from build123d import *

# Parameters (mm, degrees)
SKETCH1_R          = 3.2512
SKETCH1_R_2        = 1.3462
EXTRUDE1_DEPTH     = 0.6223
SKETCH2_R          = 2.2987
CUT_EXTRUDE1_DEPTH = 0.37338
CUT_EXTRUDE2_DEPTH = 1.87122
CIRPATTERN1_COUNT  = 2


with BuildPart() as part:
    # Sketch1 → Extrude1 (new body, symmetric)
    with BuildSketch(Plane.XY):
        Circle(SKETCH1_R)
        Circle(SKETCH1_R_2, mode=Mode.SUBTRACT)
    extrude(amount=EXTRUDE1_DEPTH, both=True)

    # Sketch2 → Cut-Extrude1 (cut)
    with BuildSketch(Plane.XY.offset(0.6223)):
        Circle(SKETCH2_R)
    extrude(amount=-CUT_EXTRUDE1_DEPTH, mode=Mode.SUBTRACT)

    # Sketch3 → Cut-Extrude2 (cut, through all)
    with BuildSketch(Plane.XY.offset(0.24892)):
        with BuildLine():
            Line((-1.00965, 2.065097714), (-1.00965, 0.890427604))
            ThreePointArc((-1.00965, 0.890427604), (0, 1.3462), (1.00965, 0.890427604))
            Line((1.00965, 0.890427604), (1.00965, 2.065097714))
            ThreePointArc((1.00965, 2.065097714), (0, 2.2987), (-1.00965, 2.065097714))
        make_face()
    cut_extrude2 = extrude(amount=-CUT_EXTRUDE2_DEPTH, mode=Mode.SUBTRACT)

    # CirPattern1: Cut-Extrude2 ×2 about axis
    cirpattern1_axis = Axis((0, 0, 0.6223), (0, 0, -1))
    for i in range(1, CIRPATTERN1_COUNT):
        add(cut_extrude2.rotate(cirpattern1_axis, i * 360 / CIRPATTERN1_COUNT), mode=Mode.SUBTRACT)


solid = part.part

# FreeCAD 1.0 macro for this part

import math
import FreeCAD as App
import Part
import Sketcher

V = App.Vector
Q = App.Units.Quantity

doc = App.newDocument("Part")
body = doc.addObject("PartDesign::Body", "Body")

# Sketch on XY plane
sketch1 = doc.addObject("Sketcher::SketchObject", "Sketch")
body.addObject(sketch1)
sketch1.AttachmentSupport = (doc.XY_Plane, [""])
sketch1.MapMode = "FlatFace"
sketch1.addGeometry(Part.Circle(V(0, 0, 0), V(0, 0, 1), 3.3), False)
sketch1.addGeometry(Part.Circle(V(0, 0, 0), V(0, 0, 1), 1.3), False)
sketch1.addConstraint(Sketcher.Constraint("Coincident", 0, 3, -1, 1))
sketch1.addConstraint(Sketcher.Constraint("Coincident", 1, 3, -1, 1))
sketch1.addConstraint(Sketcher.Constraint("Diameter", 0, Q("0.256 in")))
sketch1.addConstraint(Sketcher.Constraint("Diameter", 1, Q("0.106 in")))
pad1 = doc.addObject("PartDesign::Pad", "Pad")
body.addObject(pad1)
pad1.Profile = sketch1
pad1.Length = Q("0.049 in")
pad1.Midplane = True

# Sketch on XY plane
sketch2 = doc.addObject("Sketcher::SketchObject", "Sketch001")
body.addObject(sketch2)
sketch2.AttachmentSupport = (doc.XY_Plane, [""])
sketch2.MapMode = "FlatFace"
sketch2.AttachmentOffset = App.Placement(V(0, 0, 0.0245 * 25.4), App.Rotation())
sketch2.addGeometry(Part.Circle(V(0, 0, 0), V(0, 0, 1), 2.3), False)
sketch2.addConstraint(Sketcher.Constraint("Coincident", 0, 3, -1, 1))
sketch2.addConstraint(Sketcher.Constraint("Diameter", 0, Q("0.181 in")))
pocket1 = doc.addObject("PartDesign::Pocket", "Pocket")
body.addObject(pocket1)
pocket1.Profile = sketch2
pocket1.Length = Q("0.0147 in")

# Sketch on XY plane
sketch3 = doc.addObject("Sketcher::SketchObject", "Sketch002")
body.addObject(sketch3)
sketch3.AttachmentSupport = (doc.XY_Plane, [""])
sketch3.MapMode = "FlatFace"
sketch3.AttachmentOffset = App.Placement(V(0, 0, 0.0098 * 25.4), App.Rotation())
sketch3.addGeometry(Part.LineSegment(V(-1, 2.1, 0), V(-1, 0.9, 0)), False)
sketch3.addGeometry(Part.ArcOfCircle(Part.Circle(V(0, 0, 0), V(0, 0, 1), 1.3), math.radians(41), math.radians(139)), False)
sketch3.addGeometry(Part.LineSegment(V(1, 0.9, 0), V(1, 2.1, 0)), False)
sketch3.addGeometry(Part.ArcOfCircle(Part.Circle(V(0, 0, 0), V(0, 0, 1), 2.3), math.radians(64), math.radians(116)), False)
sketch3.addConstraint(Sketcher.Constraint("Coincident", 0, 2, 1, 2))
sketch3.addConstraint(Sketcher.Constraint("Coincident", 1, 1, 2, 1))
sketch3.addConstraint(Sketcher.Constraint("Coincident", 2, 2, 3, 1))
sketch3.addConstraint(Sketcher.Constraint("Coincident", 3, 2, 0, 1))
sketch3.addConstraint(Sketcher.Constraint("Vertical", 0))
sketch3.addConstraint(Sketcher.Constraint("Vertical", 2))
sketch3.addConstraint(Sketcher.Constraint("Coincident", 1, 3, -1, 1))
sketch3.addConstraint(Sketcher.Constraint("Coincident", 3, 3, -1, 1))
sketch3.addConstraint(Sketcher.Constraint("Horizontal", 0, 2, 1, 1))
sketch3.addConstraint(Sketcher.Constraint("Radius", 1, Q("0.053 in")))
sketch3.addConstraint(Sketcher.Constraint("Radius", 3, Q("0.0905 in")))
sketch3.addConstraint(Sketcher.Constraint("DistanceX", 0, 2, 1, 1, Q("0.0795 in")))
pocket2 = doc.addObject("PartDesign::Pocket", "Pocket001")
body.addObject(pocket2)
pocket2.Profile = sketch3
pocket2.Type = "ThroughAll"
doc.recompute()

polarpattern = doc.addObject("PartDesign::PolarPattern", "PolarPattern")
body.addObject(polarpattern)
polarpattern.Originals = [pocket2]
polarpattern.Axis = (doc.Z_Axis, [""])
polarpattern.Angle = 360
polarpattern.Occurrences = 2
body.Tip = polarpattern

doc.recompute()
